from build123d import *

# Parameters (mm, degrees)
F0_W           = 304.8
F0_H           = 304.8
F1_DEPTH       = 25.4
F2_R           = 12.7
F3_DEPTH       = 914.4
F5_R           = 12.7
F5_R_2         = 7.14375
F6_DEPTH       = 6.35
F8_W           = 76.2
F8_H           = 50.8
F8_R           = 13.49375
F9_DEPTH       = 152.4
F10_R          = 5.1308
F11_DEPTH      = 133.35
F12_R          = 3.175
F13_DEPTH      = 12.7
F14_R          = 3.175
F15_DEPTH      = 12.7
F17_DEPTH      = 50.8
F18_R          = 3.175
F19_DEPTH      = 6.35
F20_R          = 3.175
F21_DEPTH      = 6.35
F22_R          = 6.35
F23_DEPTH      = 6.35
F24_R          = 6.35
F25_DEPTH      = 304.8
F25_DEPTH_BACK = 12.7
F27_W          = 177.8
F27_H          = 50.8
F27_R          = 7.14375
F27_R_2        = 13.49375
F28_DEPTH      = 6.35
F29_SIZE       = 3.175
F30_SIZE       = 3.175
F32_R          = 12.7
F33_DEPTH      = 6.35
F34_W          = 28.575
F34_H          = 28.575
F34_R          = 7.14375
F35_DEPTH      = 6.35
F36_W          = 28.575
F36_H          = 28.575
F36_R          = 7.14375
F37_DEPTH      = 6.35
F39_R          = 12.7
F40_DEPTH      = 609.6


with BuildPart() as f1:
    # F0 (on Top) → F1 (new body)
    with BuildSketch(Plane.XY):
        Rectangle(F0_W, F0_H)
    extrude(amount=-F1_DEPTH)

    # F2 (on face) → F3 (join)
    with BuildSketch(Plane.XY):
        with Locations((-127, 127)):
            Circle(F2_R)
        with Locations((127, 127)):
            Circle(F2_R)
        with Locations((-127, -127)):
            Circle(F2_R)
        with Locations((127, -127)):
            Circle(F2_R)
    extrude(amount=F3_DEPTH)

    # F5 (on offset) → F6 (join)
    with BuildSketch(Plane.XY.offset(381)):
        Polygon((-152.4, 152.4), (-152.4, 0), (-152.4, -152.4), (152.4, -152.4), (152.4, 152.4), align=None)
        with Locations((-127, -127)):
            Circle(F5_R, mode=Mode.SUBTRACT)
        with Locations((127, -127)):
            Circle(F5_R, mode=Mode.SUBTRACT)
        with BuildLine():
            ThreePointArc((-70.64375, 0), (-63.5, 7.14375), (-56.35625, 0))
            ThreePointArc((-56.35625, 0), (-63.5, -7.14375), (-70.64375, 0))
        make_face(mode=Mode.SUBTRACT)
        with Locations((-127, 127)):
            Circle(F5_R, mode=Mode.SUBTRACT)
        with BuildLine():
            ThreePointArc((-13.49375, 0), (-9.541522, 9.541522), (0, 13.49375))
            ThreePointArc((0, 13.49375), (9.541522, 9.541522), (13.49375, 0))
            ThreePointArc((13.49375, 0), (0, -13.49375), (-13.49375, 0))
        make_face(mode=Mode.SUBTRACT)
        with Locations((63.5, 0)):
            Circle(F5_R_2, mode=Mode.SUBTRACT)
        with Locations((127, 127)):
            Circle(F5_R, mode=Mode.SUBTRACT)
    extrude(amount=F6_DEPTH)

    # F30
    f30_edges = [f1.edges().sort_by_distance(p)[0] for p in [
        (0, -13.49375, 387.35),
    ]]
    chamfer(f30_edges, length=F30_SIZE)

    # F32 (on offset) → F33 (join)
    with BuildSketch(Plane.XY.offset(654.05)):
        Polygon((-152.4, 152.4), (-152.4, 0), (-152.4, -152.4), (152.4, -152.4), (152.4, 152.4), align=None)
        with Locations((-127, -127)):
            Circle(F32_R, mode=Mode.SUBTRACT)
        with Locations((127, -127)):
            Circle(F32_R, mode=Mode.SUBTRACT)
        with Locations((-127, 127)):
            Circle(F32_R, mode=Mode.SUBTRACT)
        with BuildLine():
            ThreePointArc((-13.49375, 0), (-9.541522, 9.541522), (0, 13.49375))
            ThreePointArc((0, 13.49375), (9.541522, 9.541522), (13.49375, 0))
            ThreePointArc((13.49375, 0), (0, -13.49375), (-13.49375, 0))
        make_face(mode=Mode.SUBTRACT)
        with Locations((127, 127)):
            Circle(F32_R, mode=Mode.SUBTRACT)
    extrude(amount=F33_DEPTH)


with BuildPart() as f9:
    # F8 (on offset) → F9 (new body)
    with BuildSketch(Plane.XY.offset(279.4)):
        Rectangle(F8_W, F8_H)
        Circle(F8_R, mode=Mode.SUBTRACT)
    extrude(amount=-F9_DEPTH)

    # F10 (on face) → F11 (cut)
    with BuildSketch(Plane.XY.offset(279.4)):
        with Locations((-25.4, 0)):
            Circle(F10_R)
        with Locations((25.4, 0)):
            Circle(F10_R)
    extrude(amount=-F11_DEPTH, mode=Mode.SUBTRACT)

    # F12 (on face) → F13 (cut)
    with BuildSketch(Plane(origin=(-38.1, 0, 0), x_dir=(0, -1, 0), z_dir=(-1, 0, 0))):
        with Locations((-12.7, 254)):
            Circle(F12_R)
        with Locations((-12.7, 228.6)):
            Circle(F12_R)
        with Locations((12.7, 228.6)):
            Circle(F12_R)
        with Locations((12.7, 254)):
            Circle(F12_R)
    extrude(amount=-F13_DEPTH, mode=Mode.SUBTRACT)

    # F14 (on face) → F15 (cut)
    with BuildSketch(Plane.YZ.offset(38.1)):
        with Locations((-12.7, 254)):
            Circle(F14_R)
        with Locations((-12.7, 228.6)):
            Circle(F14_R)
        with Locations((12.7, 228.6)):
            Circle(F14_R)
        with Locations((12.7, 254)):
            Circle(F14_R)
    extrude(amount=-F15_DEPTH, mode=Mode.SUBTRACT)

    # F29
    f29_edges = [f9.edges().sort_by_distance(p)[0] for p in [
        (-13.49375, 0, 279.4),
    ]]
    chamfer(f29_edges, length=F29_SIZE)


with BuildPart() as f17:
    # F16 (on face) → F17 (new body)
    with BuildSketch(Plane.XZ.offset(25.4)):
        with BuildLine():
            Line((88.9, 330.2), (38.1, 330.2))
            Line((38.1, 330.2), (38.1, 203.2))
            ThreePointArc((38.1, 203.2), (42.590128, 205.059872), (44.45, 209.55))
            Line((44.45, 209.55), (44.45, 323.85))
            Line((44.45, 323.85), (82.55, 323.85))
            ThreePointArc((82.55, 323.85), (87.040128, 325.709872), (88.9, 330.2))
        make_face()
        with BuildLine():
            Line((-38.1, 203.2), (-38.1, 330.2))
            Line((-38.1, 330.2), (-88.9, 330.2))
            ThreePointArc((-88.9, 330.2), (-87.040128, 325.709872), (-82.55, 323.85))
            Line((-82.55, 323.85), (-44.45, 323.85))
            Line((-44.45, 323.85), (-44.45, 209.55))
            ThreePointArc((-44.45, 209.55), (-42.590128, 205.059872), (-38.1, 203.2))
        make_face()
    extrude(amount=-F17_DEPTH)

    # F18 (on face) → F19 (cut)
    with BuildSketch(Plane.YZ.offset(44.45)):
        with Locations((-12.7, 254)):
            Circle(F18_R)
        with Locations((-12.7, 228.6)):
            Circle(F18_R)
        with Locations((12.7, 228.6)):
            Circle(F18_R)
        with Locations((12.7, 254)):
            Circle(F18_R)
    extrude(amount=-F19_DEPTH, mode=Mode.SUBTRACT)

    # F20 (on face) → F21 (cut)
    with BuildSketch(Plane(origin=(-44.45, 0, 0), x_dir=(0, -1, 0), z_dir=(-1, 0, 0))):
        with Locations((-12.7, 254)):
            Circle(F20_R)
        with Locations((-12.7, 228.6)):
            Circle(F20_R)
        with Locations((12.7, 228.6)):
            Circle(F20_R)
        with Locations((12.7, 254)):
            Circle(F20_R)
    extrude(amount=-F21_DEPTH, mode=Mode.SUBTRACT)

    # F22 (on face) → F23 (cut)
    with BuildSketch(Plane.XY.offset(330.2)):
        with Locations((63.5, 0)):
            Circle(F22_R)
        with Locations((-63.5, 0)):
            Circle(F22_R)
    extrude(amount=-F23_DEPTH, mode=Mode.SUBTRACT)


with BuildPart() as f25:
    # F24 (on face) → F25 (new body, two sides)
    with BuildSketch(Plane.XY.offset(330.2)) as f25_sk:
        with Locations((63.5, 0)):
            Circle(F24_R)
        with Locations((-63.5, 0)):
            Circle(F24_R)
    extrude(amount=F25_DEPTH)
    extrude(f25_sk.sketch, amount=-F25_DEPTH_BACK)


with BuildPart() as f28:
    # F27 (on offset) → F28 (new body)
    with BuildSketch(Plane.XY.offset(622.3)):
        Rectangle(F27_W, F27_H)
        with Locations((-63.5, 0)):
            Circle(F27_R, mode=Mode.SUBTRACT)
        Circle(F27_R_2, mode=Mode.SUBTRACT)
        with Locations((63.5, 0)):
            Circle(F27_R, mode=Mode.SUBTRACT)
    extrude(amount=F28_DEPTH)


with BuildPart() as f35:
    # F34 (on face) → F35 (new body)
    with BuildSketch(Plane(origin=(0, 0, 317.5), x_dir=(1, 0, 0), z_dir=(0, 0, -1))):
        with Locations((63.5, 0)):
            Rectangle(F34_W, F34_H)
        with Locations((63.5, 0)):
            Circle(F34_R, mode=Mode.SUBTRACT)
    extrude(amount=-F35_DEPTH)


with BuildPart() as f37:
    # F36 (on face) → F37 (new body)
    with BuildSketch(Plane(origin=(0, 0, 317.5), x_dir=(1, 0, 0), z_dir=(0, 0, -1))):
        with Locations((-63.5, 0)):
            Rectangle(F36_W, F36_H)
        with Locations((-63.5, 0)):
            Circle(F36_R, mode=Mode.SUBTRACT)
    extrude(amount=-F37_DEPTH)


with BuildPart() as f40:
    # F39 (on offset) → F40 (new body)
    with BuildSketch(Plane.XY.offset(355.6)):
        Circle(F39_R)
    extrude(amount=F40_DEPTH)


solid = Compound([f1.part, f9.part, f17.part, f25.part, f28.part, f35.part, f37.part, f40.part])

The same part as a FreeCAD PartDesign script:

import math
import FreeCAD as App
import Part
import Sketcher

V = App.Vector
Q = App.Units.Quantity


def edges_at(feature, points):
    """Names of the edges that pass closest to the given points."""
    edges = feature.Shape.Edges
    near = lambda p: min(range(len(edges)), key=lambda i: edges[i].distToShape(Part.Vertex(*p))[0])
    return sorted({f"Edge{near(p) + 1}" for p in points})


def add_polygon(sketch, points):
    """Adds a closed chain of lines whose ends are joined by coincident constraints."""
    first, n = sketch.GeometryCount, len(points)
    for a, b in zip(points, points[1:] + points[:1]):
        sketch.addGeometry(Part.LineSegment(App.Vector(*a, 0), App.Vector(*b, 0)), False)
    for i in range(n):
        sketch.addConstraint(Sketcher.Constraint("Coincident", first + i, 2, first + (i + 1) % n, 1))

doc = App.newDocument("Part")
params = doc.addObject("Spreadsheet::Sheet", "Params")
for row, (alias, value) in enumerate([
    ("sketch1_width", "12 in"),
    ("pad1_length", "1 in"),
    ("sketch2_diameter", "1 in"),
    ("pad2_length", "36 in"),
    ("sketch3_diameter", "1 in"),
    ("sketch3_width", "12 in"),
    ("sketch3_diameter2", "0.5625 in"),
    ("sketch3_radius", "0.53125 in"),
    ("pad3_length", "0.25 in"),
    ("chamfer_size", "0.125 in"),
    ("sketch4_diameter", "1 in"),
    ("sketch4_width", "12 in"),
    ("sketch4_radius", "0.53125 in"),
    ("pad4_length", "0.25 in"),
    ("sketch5_width", "3 in"),
    ("sketch5_height", "2 in"),
    ("sketch5_diameter", "1.0625 in"),
    ("pad5_length", "6 in"),
    ("sketch6_diameter", "0.404 in"),
    ("pocket1_length", "5.25 in"),
    ("sketch7_diameter", "0.25 in"),
    ("pocket2_length", "0.5 in"),
    ("sketch8_diameter", "0.25 in"),
    ("pocket3_length", "0.5 in"),
    ("chamfer2_size", "0.125 in"),
    ("sketch9_width", "2 in"),
    ("sketch9_height", "5 in"),
    ("sketch9_radius", "0.25 in"),
    ("pad6_length", "2 in"),
    ("sketch10_diameter", "0.25 in"),
    ("pocket4_length", "0.25 in"),
    ("sketch11_diameter", "0.25 in"),
    ("pocket5_length", "0.25 in"),
    ("sketch12_diameter", "0.5 in"),
    ("pocket6_length", "0.25 in"),
    ("sketch13_diameter", "0.5 in"),
    ("pad7_length", "12 in"),
    ("pad7_length2", "0.5 in"),
    ("sketch14_width", "7 in"),
    ("sketch14_height", "2 in"),
    ("sketch14_diameter", "0.5625 in"),
    ("sketch14_diameter2", "1.0625 in"),
    ("pad8_length", "0.25 in"),
    ("sketch15_diameter", "0.5625 in"),
    ("sketch15_width", "1.125 in"),
    ("pad9_length", "0.25 in"),
    ("sketch16_diameter", "0.5625 in"),
    ("sketch16_width", "1.125 in"),
    ("pad10_length", "0.25 in"),
    ("sketch17_diameter", "1 in"),
    ("pad11_length", "24 in"),
], start=1):
    params.set(f"A{row}", alias)
    params.set(f"B{row}", "=" + value)
    params.setAlias(f"B{row}", alias)

body = doc.addObject("PartDesign::Body", "Body")

# Sketch on XY plane
sketch1 = body.newObject("Sketcher::SketchObject", "Sketch")
sketch1.AttachmentSupport = (doc.getObject("XY_Plane"), [""])
sketch1.MapMode = "FlatFace"
add_polygon(sketch1, [(-152, 152), (-152, -152), (152, -152), (152, 152)])  # lines 0-3
sketch1.addConstraint(Sketcher.Constraint("Vertical", 0))
sketch1.addConstraint(Sketcher.Constraint("Horizontal", 1))
sketch1.addConstraint(Sketcher.Constraint("Vertical", 2))
sketch1.addConstraint(Sketcher.Constraint("Horizontal", 3))
sketch1.addConstraint(Sketcher.Constraint("Symmetric", 0, 2, 2, 2, -1, 1))
sketch1.addConstraint(Sketcher.Constraint("Equal", 3, 0))
sketch1.addConstraint(Sketcher.Constraint("DistanceX", 1, 1, 1, 2, Q("12 in")))
sketch1.setExpression("Constraints[10]", "Params.sketch1_width")
pad1 = body.newObject("PartDesign::Pad", "Pad")
pad1.Profile = sketch1
pad1.setExpression("Length", "Params.pad1_length")
pad1.Reversed = True

# Sketch on XY plane
sketch2 = body.newObject("Sketcher::SketchObject", "Sketch001")
sketch2.AttachmentSupport = (doc.getObject("XY_Plane"), [""])
sketch2.MapMode = "FlatFace"
sketch2.addGeometry(Part.Circle(V(-127, 127, 0), V(0, 0, 1), 13), False)
sketch2.addGeometry(Part.Circle(V(127, 127, 0), V(0, 0, 1), 13), False)
sketch2.addGeometry(Part.Circle(V(-127, -127, 0), V(0, 0, 1), 13), False)
sketch2.addGeometry(Part.Circle(V(127, -127, 0), V(0, 0, 1), 13), False)
sketch2.addConstraint(Sketcher.Constraint("Equal", 0, 1))
sketch2.addConstraint(Sketcher.Constraint("Equal", 1, 2))
sketch2.addConstraint(Sketcher.Constraint("Equal", 2, 3))
sketch2.addConstraint(Sketcher.Constraint("Symmetric", 1, 3, 2, 3, -1, 1))
sketch2.addConstraint(Sketcher.Constraint("Symmetric", 0, 3, 3, 3, -1, 1))
sketch2.addConstraint(Sketcher.Constraint("Symmetric", 0, 3, 1, 3, -2))
sketch2.addConstraint(Sketcher.Constraint("Diameter", 0, Q("1 in")))
sketch2.addConstraint(Sketcher.Constraint("DistanceX", 0, 3, -1, 1, Q("5 in")))
sketch2.addConstraint(Sketcher.Constraint("DistanceY", -1, 1, 0, 3, Q("5 in")))
sketch2.setExpression("Constraints[6]", "Params.sketch2_diameter")
pad2 = body.newObject("PartDesign::Pad", "Pad001")
pad2.Profile = sketch2
pad2.setExpression("Length", "Params.pad2_length")

# Sketch on XY plane
sketch3 = body.newObject("Sketcher::SketchObject", "Sketch002")
sketch3.AttachmentSupport = (doc.getObject("XY_Plane"), [""])
sketch3.MapMode = "FlatFace"
sketch3.AttachmentOffset = App.Placement(V(0, 0, 15 * 25.4), App.Rotation())
add_polygon(sketch3, [(-152, 152), (-152, -152), (152, -152), (152, 152)])  # lines 0-3
sketch3.addGeometry(Part.Circle(V(-127, -127, 0), V(0, 0, 1), 13), False)  # 4
sketch3.addGeometry(Part.Circle(V(127, -127, 0), V(0, 0, 1), 13), False)  # 5
sketch3.addGeometry(Part.Circle(V(-64, 0, 0), V(0, 0, 1), 7), False)  # 6
sketch3.addGeometry(Part.Circle(V(-127, 127, 0), V(0, 0, 1), 13), False)  # 7
sketch3.addGeometry(Part.ArcOfCircle(Part.Circle(V(0, 0, 0), V(0, 0, 1), 13), math.radians(180), math.radians(360)), False)  # 8
sketch3.addGeometry(Part.ArcOfCircle(Part.Circle(V(0, 0, 0), V(0, 0, 1), 13), math.radians(90), math.radians(180)), False)  # 9
sketch3.addGeometry(Part.ArcOfCircle(Part.Circle(V(0, 0, 0), V(0, 0, 1), 13), math.radians(0), math.radians(90)), False)  # 10
sketch3.addGeometry(Part.Circle(V(64, 0, 0), V(0, 0, 1), 7), False)  # 11
sketch3.addGeometry(Part.Circle(V(127, 127, 0), V(0, 0, 1), 13), False)  # 12
sketch3.addConstraint(Sketcher.Constraint("Tangent", 8, 1, 9, 2))
sketch3.addConstraint(Sketcher.Constraint("Tangent", 9, 1, 10, 2))
sketch3.addConstraint(Sketcher.Constraint("Tangent", 10, 1, 8, 2))
sketch3.addConstraint(Sketcher.Constraint("Vertical", 0))
sketch3.addConstraint(Sketcher.Constraint("Horizontal", 1))
sketch3.addConstraint(Sketcher.Constraint("Vertical", 2))
sketch3.addConstraint(Sketcher.Constraint("Horizontal", 3))
sketch3.addConstraint(Sketcher.Constraint("Coincident", 8, 3, -1, 1))
sketch3.addConstraint(Sketcher.Constraint("Equal", 4, 5))
sketch3.addConstraint(Sketcher.Constraint("Equal", 5, 7))
sketch3.addConstraint(Sketcher.Constraint("Equal", 6, 11))
sketch3.addConstraint(Sketcher.Constraint("Equal", 7, 12))
sketch3.addConstraint(Sketcher.Constraint("Symmetric", 5, 3, 7, 3, -1, 1))
sketch3.addConstraint(Sketcher.Constraint("Symmetric", 6, 3, 11, 3, -1, 1))
sketch3.addConstraint(Sketcher.Constraint("Symmetric", 4, 3, 12, 3, -1, 1))
sketch3.addConstraint(Sketcher.Constraint("Symmetric", 0, 2, 2, 2, -1, 1))
sketch3.addConstraint(Sketcher.Constraint("Symmetric", 4, 3, 5, 3, -2))
sketch3.addConstraint(Sketcher.Constraint("PointOnObject", 6, 3, -1))
sketch3.addConstraint(Sketcher.Constraint("PointOnObject", 8, 1, -1))
sketch3.addConstraint(Sketcher.Constraint("PointOnObject", 9, 1, -2))
sketch3.addConstraint(Sketcher.Constraint("PointOnObject", 10, 1, -1))
sketch3.addConstraint(Sketcher.Constraint("Equal", 3, 0))
sketch3.addConstraint(Sketcher.Constraint("Diameter", 4, Q("1 in")))
sketch3.addConstraint(Sketcher.Constraint("DistanceX", 1, 1, 1, 2, Q("12 in")))
sketch3.addConstraint(Sketcher.Constraint("Diameter", 6, Q("0.5625 in")))
sketch3.addConstraint(Sketcher.Constraint("DistanceX", 4, 3, -1, 1, Q("5 in")))
sketch3.addConstraint(Sketcher.Constraint("DistanceY", 4, 3, -1, 1, Q("5 in")))
sketch3.addConstraint(Sketcher.Constraint("Radius", 8, Q("0.53125 in")))
sketch3.addConstraint(Sketcher.Constraint("DistanceX", 6, 3, 11, 3, Q("5 in")))
sketch3.setExpression("Constraints[26]", "Params.sketch3_diameter")
sketch3.setExpression("Constraints[27]", "Params.sketch3_width")
sketch3.setExpression("Constraints[28]", "Params.sketch3_diameter2")
sketch3.setExpression("Constraints[31]", "Params.sketch3_radius")
pad3 = body.newObject("PartDesign::Pad", "Pad002")
pad3.Profile = sketch3
pad3.setExpression("Length", "Params.pad3_length")
doc.recompute()

chamfer = body.newObject("PartDesign::Chamfer", "Chamfer")
chamfer.Base = (pad3, edges_at(pad3, [(0, -13.494, 387.35)]))
chamfer.setExpression("Size", "Params.chamfer_size")

# Sketch on XY plane
sketch4 = body.newObject("Sketcher::SketchObject", "Sketch003")
sketch4.AttachmentSupport = (doc.getObject("XY_Plane"), [""])
sketch4.MapMode = "FlatFace"
sketch4.AttachmentOffset = App.Placement(V(0, 0, 25.75 * 25.4), App.Rotation())
add_polygon(sketch4, [(-152, 152), (-152, -152), (152, -152), (152, 152)])  # lines 0-3
sketch4.addGeometry(Part.Circle(V(-127, -127, 0), V(0, 0, 1), 13), False)  # 4
sketch4.addGeometry(Part.Circle(V(127, -127, 0), V(0, 0, 1), 13), False)  # 5
sketch4.addGeometry(Part.Circle(V(-127, 127, 0), V(0, 0, 1), 13), False)  # 6
sketch4.addGeometry(Part.ArcOfCircle(Part.Circle(V(0, 0, 0), V(0, 0, 1), 13), math.radians(180), math.radians(360)), False)  # 7
sketch4.addGeometry(Part.ArcOfCircle(Part.Circle(V(0, 0, 0), V(0, 0, 1), 13), math.radians(90), math.radians(180)), False)  # 8
sketch4.addGeometry(Part.ArcOfCircle(Part.Circle(V(0, 0, 0), V(0, 0, 1), 13), math.radians(0), math.radians(90)), False)  # 9
sketch4.addGeometry(Part.Circle(V(127, 127, 0), V(0, 0, 1), 13), False)  # 10
sketch4.addConstraint(Sketcher.Constraint("Tangent", 7, 1, 8, 2))
sketch4.addConstraint(Sketcher.Constraint("Tangent", 8, 1, 9, 2))
sketch4.addConstraint(Sketcher.Constraint("Tangent", 9, 1, 7, 2))
sketch4.addConstraint(Sketcher.Constraint("Vertical", 0))
sketch4.addConstraint(Sketcher.Constraint("Horizontal", 1))
sketch4.addConstraint(Sketcher.Constraint("Vertical", 2))
sketch4.addConstraint(Sketcher.Constraint("Horizontal", 3))
sketch4.addConstraint(Sketcher.Constraint("Coincident", 7, 3, -1, 1))
sketch4.addConstraint(Sketcher.Constraint("Equal", 4, 5))
sketch4.addConstraint(Sketcher.Constraint("Equal", 5, 6))
sketch4.addConstraint(Sketcher.Constraint("Equal", 6, 10))
sketch4.addConstraint(Sketcher.Constraint("Symmetric", 5, 3, 6, 3, -1, 1))
sketch4.addConstraint(Sketcher.Constraint("Symmetric", 4, 3, 10, 3, -1, 1))
sketch4.addConstraint(Sketcher.Constraint("Symmetric", 0, 2, 2, 2, -1, 1))
sketch4.addConstraint(Sketcher.Constraint("Symmetric", 4, 3, 5, 3, -2))
sketch4.addConstraint(Sketcher.Constraint("PointOnObject", 7, 1, -1))
sketch4.addConstraint(Sketcher.Constraint("PointOnObject", 8, 1, -2))
sketch4.addConstraint(Sketcher.Constraint("PointOnObject", 9, 1, -1))
sketch4.addConstraint(Sketcher.Constraint("Equal", 3, 0))
sketch4.addConstraint(Sketcher.Constraint("Diameter", 4, Q("1 in")))
sketch4.addConstraint(Sketcher.Constraint("DistanceX", 1, 1, 1, 2, Q("12 in")))
sketch4.addConstraint(Sketcher.Constraint("DistanceX", 4, 3, -1, 1, Q("5 in")))
sketch4.addConstraint(Sketcher.Constraint("DistanceY", 4, 3, -1, 1, Q("5 in")))
sketch4.addConstraint(Sketcher.Constraint("Radius", 7, Q("0.53125 in")))
sketch4.setExpression("Constraints[23]", "Params.sketch4_diameter")
sketch4.setExpression("Constraints[24]", "Params.sketch4_width")
sketch4.setExpression("Constraints[27]", "Params.sketch4_radius")
pad4 = body.newObject("PartDesign::Pad", "Pad003")
pad4.Profile = sketch4
pad4.setExpression("Length", "Params.pad4_length")
body2 = doc.addObject("PartDesign::Body", "Body001")

# Sketch on XY plane
sketch5 = body2.newObject("Sketcher::SketchObject", "Sketch004")
sketch5.AttachmentSupport = (doc.getObject("XY_Plane001"), [""])
sketch5.MapMode = "FlatFace"
sketch5.AttachmentOffset = App.Placement(V(0, 0, 11 * 25.4), App.Rotation())
add_polygon(sketch5, [(-38, 25), (-38, -25), (38, -25), (38, 25)])  # lines 0-3
sketch5.addGeometry(Part.Circle(V(0, 0, 0), V(0, 0, 1), 13), False)  # 4
sketch5.addConstraint(Sketcher.Constraint("Vertical", 0))
sketch5.addConstraint(Sketcher.Constraint("Horizontal", 1))
sketch5.addConstraint(Sketcher.Constraint("Vertical", 2))
sketch5.addConstraint(Sketcher.Constraint("Horizontal", 3))
sketch5.addConstraint(Sketcher.Constraint("Coincident", 4, 3, -1, 1))
sketch5.addConstraint(Sketcher.Constraint("Symmetric", 0, 2, 2, 2, -1, 1))
sketch5.addConstraint(Sketcher.Constraint("DistanceX", 1, 1, 1, 2, Q("3 in")))
sketch5.addConstraint(Sketcher.Constraint("DistanceY", 0, 2, 0, 1, Q("2 in")))
sketch5.addConstraint(Sketcher.Constraint("Diameter", 4, Q("1.0625 in")))
sketch5.setExpression("Constraints[10]", "Params.sketch5_width")
sketch5.setExpression("Constraints[11]", "Params.sketch5_height")
sketch5.setExpression("Constraints[12]", "Params.sketch5_diameter")
pad5 = body2.newObject("PartDesign::Pad", "Pad004")
pad5.Profile = sketch5
pad5.setExpression("Length", "Params.pad5_length")
pad5.Reversed = True

# Sketch on XY plane
sketch6 = body2.newObject("Sketcher::SketchObject", "Sketch005")
sketch6.AttachmentSupport = (doc.getObject("XY_Plane001"), [""])
sketch6.MapMode = "FlatFace"
sketch6.AttachmentOffset = App.Placement(V(0, 0, 11 * 25.4), App.Rotation())
sketch6.addGeometry(Part.Circle(V(-25, 0, 0), V(0, 0, 1), 5), False)
sketch6.addGeometry(Part.Circle(V(25, 0, 0), V(0, 0, 1), 5), False)
sketch6.addConstraint(Sketcher.Constraint("Equal", 0, 1))
sketch6.addConstraint(Sketcher.Constraint("Symmetric", 0, 3, 1, 3, -1, 1))
sketch6.addConstraint(Sketcher.Constraint("PointOnObject", 0, 3, -1))
sketch6.addConstraint(Sketcher.Constraint("Diameter", 0, Q("0.404 in")))
sketch6.addConstraint(Sketcher.Constraint("DistanceX", 0, 3, -1, 1, Q("1 in")))
sketch6.setExpression("Constraints[3]", "Params.sketch6_diameter")
pocket1 = body2.newObject("PartDesign::Pocket", "Pocket")
pocket1.Profile = sketch6
pocket1.setExpression("Length", "Params.pocket1_length")

# Sketch on YZ plane
sketch7 = body2.newObject("Sketcher::SketchObject", "Sketch006")
sketch7.AttachmentSupport = (doc.getObject("YZ_Plane001"), [""])
sketch7.MapMode = "FlatFace"
sketch7.AttachmentOffset = App.Placement(V(0, 0, -1.5 * 25.4), App.Rotation())
sketch7.addGeometry(Part.Circle(V(12.7, 254, 0), V(0, 0, 1), 3.2), False)
sketch7.addGeometry(Part.Circle(V(12.7, 228.6, 0), V(0, 0, 1), 3.2), False)
sketch7.addGeometry(Part.Circle(V(-12.7, 228.6, 0), V(0, 0, 1), 3.2), False)
sketch7.addGeometry(Part.Circle(V(-12.7, 254, 0), V(0, 0, 1), 3.2), False)
sketch7.addConstraint(Sketcher.Constraint("Equal", 0, 1))
sketch7.addConstraint(Sketcher.Constraint("Equal", 1, 2))
sketch7.addConstraint(Sketcher.Constraint("Equal", 2, 3))
sketch7.addConstraint(Sketcher.Constraint("Symmetric", 1, 3, 2, 3, -2))
sketch7.addConstraint(Sketcher.Constraint("Symmetric", 0, 3, 3, 3, -2))
sketch7.addConstraint(Sketcher.Constraint("Vertical", 0, 3, 1, 3))
sketch7.addConstraint(Sketcher.Constraint("Diameter", 0, Q("0.25 in")))
sketch7.addConstraint(Sketcher.Constraint("DistanceY", -1, 1, 0, 3, Q("10 in")))
sketch7.addConstraint(Sketcher.Constraint("DistanceY", -1, 1, 1, 3, Q("9 in")))
sketch7.addConstraint(Sketcher.Constraint("DistanceX", 2, 3, 1, 3, Q("1 in")))
sketch7.setExpression("Constraints[6]", "Params.sketch7_diameter")
pocket2 = body2.newObject("PartDesign::Pocket", "Pocket001")
pocket2.Profile = sketch7
pocket2.setExpression("Length", "Params.pocket2_length")
pocket2.Reversed = True

# Sketch on YZ plane
sketch8 = body2.newObject("Sketcher::SketchObject", "Sketch007")
sketch8.AttachmentSupport = (doc.getObject("YZ_Plane001"), [""])
sketch8.MapMode = "FlatFace"
sketch8.AttachmentOffset = App.Placement(V(0, 0, 1.5 * 25.4), App.Rotation())
sketch8.addGeometry(Part.Circle(V(-12.7, 254, 0), V(0, 0, 1), 3.2), False)
sketch8.addGeometry(Part.Circle(V(-12.7, 228.6, 0), V(0, 0, 1), 3.2), False)
sketch8.addGeometry(Part.Circle(V(12.7, 228.6, 0), V(0, 0, 1), 3.2), False)
sketch8.addGeometry(Part.Circle(V(12.7, 254, 0), V(0, 0, 1), 3.2), False)
sketch8.addConstraint(Sketcher.Constraint("Equal", 0, 1))
sketch8.addConstraint(Sketcher.Constraint("Equal", 1, 2))
sketch8.addConstraint(Sketcher.Constraint("Equal", 2, 3))
sketch8.addConstraint(Sketcher.Constraint("Symmetric", 1, 3, 2, 3, -2))
sketch8.addConstraint(Sketcher.Constraint("Symmetric", 0, 3, 3, 3, -2))
sketch8.addConstraint(Sketcher.Constraint("Vertical", 0, 3, 1, 3))
sketch8.addConstraint(Sketcher.Constraint("Diameter", 0, Q("0.25 in")))
sketch8.addConstraint(Sketcher.Constraint("DistanceY", -1, 1, 0, 3, Q("10 in")))
sketch8.addConstraint(Sketcher.Constraint("DistanceY", -1, 1, 1, 3, Q("9 in")))
sketch8.addConstraint(Sketcher.Constraint("DistanceX", 1, 3, 2, 3, Q("1 in")))
sketch8.setExpression("Constraints[6]", "Params.sketch8_diameter")
pocket3 = body2.newObject("PartDesign::Pocket", "Pocket002")
pocket3.Profile = sketch8
pocket3.setExpression("Length", "Params.pocket3_length")
doc.recompute()

chamfer2 = body2.newObject("PartDesign::Chamfer", "Chamfer001")
chamfer2.Base = (pocket3, edges_at(pocket3, [(-13.494, 0, 279.4)]))
chamfer2.setExpression("Size", "Params.chamfer2_size")
body3 = doc.addObject("PartDesign::Body", "Body002")
body3.AllowCompound = True

# Sketch on XZ plane
sketch9 = body3.newObject("Sketcher::SketchObject", "Sketch008")
sketch9.AttachmentSupport = (doc.getObject("XZ_Plane002"), [""])
sketch9.MapMode = "FlatFace"
sketch9.AttachmentOffset = App.Placement(V(0, 0, 1 * 25.4), App.Rotation())
sketch9.addGeometry(Part.LineSegment(V(89, 330, 0), V(38, 330, 0)), False)
sketch9.addGeometry(Part.LineSegment(V(38, 330, 0), V(38, 203, 0)), False)
sketch9.addGeometry(Part.ArcOfCircle(Part.Circle(V(38, 210, 0), V(0, 0, 1), 6), math.radians(-90), math.radians(0)), False)
sketch9.addGeometry(Part.LineSegment(V(44, 210, 0), V(44, 324, 0)), False)
sketch9.addGeometry(Part.LineSegment(V(44, 324, 0), V(83, 324, 0)), False)
sketch9.addGeometry(Part.ArcOfCircle(Part.Circle(V(83, 330, 0), V(0, 0, 1), 6), math.radians(-90), math.radians(0)), False)
sketch9.addGeometry(Part.LineSegment(V(-38, 203, 0), V(-38, 330, 0)), False)
sketch9.addGeometry(Part.LineSegment(V(-38, 330, 0), V(-89, 330, 0)), False)
sketch9.addGeometry(Part.ArcOfCircle(Part.Circle(V(-83, 330, 0), V(0, 0, 1), 6), math.radians(-180), math.radians(-90)), False)
sketch9.addGeometry(Part.LineSegment(V(-83, 324, 0), V(-44, 324, 0)), False)
sketch9.addGeometry(Part.LineSegment(V(-44, 324, 0), V(-44, 210, 0)), False)
sketch9.addGeometry(Part.ArcOfCircle(Part.Circle(V(-38, 210, 0), V(0, 0, 1), 6), math.radians(-180), math.radians(-90)), False)
sketch9.addConstraint(Sketcher.Constraint("Coincident", 0, 2, 1, 1))
sketch9.addConstraint(Sketcher.Constraint("Coincident", 1, 2, 2, 1))
sketch9.addConstraint(Sketcher.Constraint("Tangent", 2, 2, 3, 1))
sketch9.addConstraint(Sketcher.Constraint("Coincident", 3, 2, 4, 1))
sketch9.addConstraint(Sketcher.Constraint("Tangent", 4, 2, 5, 1))
sketch9.addConstraint(Sketcher.Constraint("Coincident", 5, 2, 0, 1))
sketch9.addConstraint(Sketcher.Constraint("Coincident", 6, 2, 7, 1))
sketch9.addConstraint(Sketcher.Constraint("Coincident", 7, 2, 8, 1))
sketch9.addConstraint(Sketcher.Constraint("Tangent", 8, 2, 9, 1))
sketch9.addConstraint(Sketcher.Constraint("Coincident", 9, 2, 10, 1))
sketch9.addConstraint(Sketcher.Constraint("Tangent", 10, 2, 11, 1))
sketch9.addConstraint(Sketcher.Constraint("Coincident", 11, 2, 6, 1))
sketch9.addConstraint(Sketcher.Constraint("Horizontal", 0))
sketch9.addConstraint(Sketcher.Constraint("Vertical", 1))
sketch9.addConstraint(Sketcher.Constraint("Vertical", 3))
sketch9.addConstraint(Sketcher.Constraint("Horizontal", 4))
sketch9.addConstraint(Sketcher.Constraint("Vertical", 6))
sketch9.addConstraint(Sketcher.Constraint("Horizontal", 7))
sketch9.addConstraint(Sketcher.Constraint("Horizontal", 9))
sketch9.addConstraint(Sketcher.Constraint("Vertical", 10))
sketch9.addConstraint(Sketcher.Constraint("Equal", 2, 5))
sketch9.addConstraint(Sketcher.Constraint("Equal", 5, 8))
sketch9.addConstraint(Sketcher.Constraint("Equal", 8, 11))
sketch9.addConstraint(Sketcher.Constraint("Symmetric", 5, 3, 8, 3, -2))
sketch9.addConstraint(Sketcher.Constraint("Symmetric", 2, 3, 11, 3, -2))
sketch9.addConstraint(Sketcher.Constraint("Symmetric", 0, 2, 6, 2, -2))
sketch9.addConstraint(Sketcher.Constraint("Horizontal", 8, 3, 0, 2))
sketch9.addConstraint(Sketcher.Constraint("Vertical", 2, 3, 0, 2))
sketch9.addConstraint(Sketcher.Constraint("DistanceX", 0, 2, 0, 1, Q("2 in")))
sketch9.addConstraint(Sketcher.Constraint("DistanceY", 1, 2, 1, 1, Q("5 in")))
sketch9.addConstraint(Sketcher.Constraint("Radius", 2, Q("0.25 in")))
sketch9.addConstraint(Sketcher.Constraint("DistanceY", -1, 1, 5, 3, Q("13 in")))
sketch9.addConstraint(Sketcher.Constraint("DistanceX", 11, 3, 2, 3, Q("3 in")))
sketch9.setExpression("Constraints[28]", "Params.sketch9_width")
sketch9.setExpression("Constraints[29]", "Params.sketch9_height")
sketch9.setExpression("Constraints[30]", "Params.sketch9_radius")
pad6 = body3.newObject("PartDesign::Pad", "Pad005")
pad6.Profile = sketch9
pad6.setExpression("Length", "Params.pad6_length")
pad6.Reversed = True

# Sketch on YZ plane
sketch10 = body3.newObject("Sketcher::SketchObject", "Sketch009")
sketch10.AttachmentSupport = (doc.getObject("YZ_Plane002"), [""])
sketch10.MapMode = "FlatFace"
sketch10.AttachmentOffset = App.Placement(V(0, 0, 1.75 * 25.4), App.Rotation())
sketch10.addGeometry(Part.Circle(V(-12.7, 254, 0), V(0, 0, 1), 3.2), False)
sketch10.addGeometry(Part.Circle(V(-12.7, 228.6, 0), V(0, 0, 1), 3.2), False)
sketch10.addGeometry(Part.Circle(V(12.7, 228.6, 0), V(0, 0, 1), 3.2), False)
sketch10.addGeometry(Part.Circle(V(12.7, 254, 0), V(0, 0, 1), 3.2), False)
sketch10.addConstraint(Sketcher.Constraint("Equal", 0, 1))
sketch10.addConstraint(Sketcher.Constraint("Equal", 1, 2))
sketch10.addConstraint(Sketcher.Constraint("Equal", 2, 3))
sketch10.addConstraint(Sketcher.Constraint("Symmetric", 1, 3, 2, 3, -2))
sketch10.addConstraint(Sketcher.Constraint("Symmetric", 0, 3, 3, 3, -2))
sketch10.addConstraint(Sketcher.Constraint("Vertical", 0, 3, 1, 3))
sketch10.addConstraint(Sketcher.Constraint("Diameter", 0, Q("0.25 in")))
sketch10.addConstraint(Sketcher.Constraint("DistanceY", -1, 1, 0, 3, Q("10 in")))
sketch10.addConstraint(Sketcher.Constraint("DistanceY", -1, 1, 1, 3, Q("9 in")))
sketch10.addConstraint(Sketcher.Constraint("DistanceX", 1, 3, 2, 3, Q("1 in")))
sketch10.setExpression("Constraints[6]", "Params.sketch10_diameter")
pocket4 = body3.newObject("PartDesign::Pocket", "Pocket003")
pocket4.Profile = sketch10
pocket4.setExpression("Length", "Params.pocket4_length")

# Sketch on YZ plane
sketch11 = body3.newObject("Sketcher::SketchObject", "Sketch010")
sketch11.AttachmentSupport = (doc.getObject("YZ_Plane002"), [""])
sketch11.MapMode = "FlatFace"
sketch11.AttachmentOffset = App.Placement(V(0, 0, -1.75 * 25.4), App.Rotation())
sketch11.addGeometry(Part.Circle(V(12.7, 254, 0), V(0, 0, 1), 3.2), False)
sketch11.addGeometry(Part.Circle(V(12.7, 228.6, 0), V(0, 0, 1), 3.2), False)
sketch11.addGeometry(Part.Circle(V(-12.7, 228.6, 0), V(0, 0, 1), 3.2), False)
sketch11.addGeometry(Part.Circle(V(-12.7, 254, 0), V(0, 0, 1), 3.2), False)
sketch11.addConstraint(Sketcher.Constraint("Equal", 0, 1))
sketch11.addConstraint(Sketcher.Constraint("Equal", 1, 2))
sketch11.addConstraint(Sketcher.Constraint("Equal", 2, 3))
sketch11.addConstraint(Sketcher.Constraint("Symmetric", 1, 3, 2, 3, -2))
sketch11.addConstraint(Sketcher.Constraint("Symmetric", 0, 3, 3, 3, -2))
sketch11.addConstraint(Sketcher.Constraint("Vertical", 0, 3, 1, 3))
sketch11.addConstraint(Sketcher.Constraint("Diameter", 0, Q("0.25 in")))
sketch11.addConstraint(Sketcher.Constraint("DistanceY", -1, 1, 0, 3, Q("10 in")))
sketch11.addConstraint(Sketcher.Constraint("DistanceY", -1, 1, 1, 3, Q("9 in")))
sketch11.addConstraint(Sketcher.Constraint("DistanceX", 2, 3, 1, 3, Q("1 in")))
sketch11.setExpression("Constraints[6]", "Params.sketch11_diameter")
pocket5 = body3.newObject("PartDesign::Pocket", "Pocket004")
pocket5.Profile = sketch11
pocket5.setExpression("Length", "Params.pocket5_length")
pocket5.Reversed = True

# Sketch on XY plane
sketch12 = body3.newObject("Sketcher::SketchObject", "Sketch011")
sketch12.AttachmentSupport = (doc.getObject("XY_Plane002"), [""])
sketch12.MapMode = "FlatFace"
sketch12.AttachmentOffset = App.Placement(V(0, 0, 13 * 25.4), App.Rotation())
sketch12.addGeometry(Part.Circle(V(64, 0, 0), V(0, 0, 1), 6), False)
sketch12.addGeometry(Part.Circle(V(-64, 0, 0), V(0, 0, 1), 6), False)
sketch12.addConstraint(Sketcher.Constraint("Equal", 0, 1))
sketch12.addConstraint(Sketcher.Constraint("Symmetric", 0, 3, 1, 3, -1, 1))
sketch12.addConstraint(Sketcher.Constraint("PointOnObject", 0, 3, -1))
sketch12.addConstraint(Sketcher.Constraint("Diameter", 0, Q("0.5 in")))
sketch12.addConstraint(Sketcher.Constraint("DistanceX", 1, 3, 0, 3, Q("5 in")))
sketch12.setExpression("Constraints[3]", "Params.sketch12_diameter")
pocket6 = body3.newObject("PartDesign::Pocket", "Pocket005")
pocket6.Profile = sketch12
pocket6.setExpression("Length", "Params.pocket6_length")
body4 = doc.addObject("PartDesign::Body", "Body003")
body4.AllowCompound = True

# Sketch on XY plane
sketch13 = body4.newObject("Sketcher::SketchObject", "Sketch012")
sketch13.AttachmentSupport = (doc.getObject("XY_Plane003"), [""])
sketch13.MapMode = "FlatFace"
sketch13.AttachmentOffset = App.Placement(V(0, 0, 13 * 25.4), App.Rotation())
sketch13.addGeometry(Part.Circle(V(64, 0, 0), V(0, 0, 1), 6), False)
sketch13.addGeometry(Part.Circle(V(-64, 0, 0), V(0, 0, 1), 6), False)
sketch13.addConstraint(Sketcher.Constraint("Equal", 0, 1))
sketch13.addConstraint(Sketcher.Constraint("Symmetric", 0, 3, 1, 3, -1, 1))
sketch13.addConstraint(Sketcher.Constraint("PointOnObject", 0, 3, -1))
sketch13.addConstraint(Sketcher.Constraint("Diameter", 0, Q("0.5 in")))
sketch13.addConstraint(Sketcher.Constraint("DistanceX", 1, 3, 0, 3, Q("5 in")))
sketch13.setExpression("Constraints[3]", "Params.sketch13_diameter")
pad7 = body4.newObject("PartDesign::Pad", "Pad006")
pad7.Profile = sketch13
pad7.Type = "TwoLengths"
pad7.setExpression("Length", "Params.pad7_length")
pad7.setExpression("Length2", "Params.pad7_length2")
body5 = doc.addObject("PartDesign::Body", "Body004")

# Sketch on XY plane
sketch14 = body5.newObject("Sketcher::SketchObject", "Sketch013")
sketch14.AttachmentSupport = (doc.getObject("XY_Plane004"), [""])
sketch14.MapMode = "FlatFace"
sketch14.AttachmentOffset = App.Placement(V(0, 0, 24.5 * 25.4), App.Rotation())
add_polygon(sketch14, [(-89, 25), (-89, -25), (89, -25), (89, 25)])  # lines 0-3
sketch14.addGeometry(Part.Circle(V(-64, 0, 0), V(0, 0, 1), 7), False)  # 4
sketch14.addGeometry(Part.Circle(V(0, 0, 0), V(0, 0, 1), 13), False)  # 5
sketch14.addGeometry(Part.Circle(V(64, 0, 0), V(0, 0, 1), 7), False)  # 6
sketch14.addConstraint(Sketcher.Constraint("Vertical", 0))
sketch14.addConstraint(Sketcher.Constraint("Horizontal", 1))
sketch14.addConstraint(Sketcher.Constraint("Vertical", 2))
sketch14.addConstraint(Sketcher.Constraint("Horizontal", 3))
sketch14.addConstraint(Sketcher.Constraint("Coincident", 5, 3, -1, 1))
sketch14.addConstraint(Sketcher.Constraint("Equal", 4, 6))
sketch14.addConstraint(Sketcher.Constraint("Symmetric", 4, 3, 6, 3, -1, 1))
sketch14.addConstraint(Sketcher.Constraint("Symmetric", 0, 2, 2, 2, -1, 1))
sketch14.addConstraint(Sketcher.Constraint("PointOnObject", 4, 3, -1))
sketch14.addConstraint(Sketcher.Constraint("DistanceX", 1, 1, 1, 2, Q("7 in")))
sketch14.addConstraint(Sketcher.Constraint("DistanceY", 0, 2, 0, 1, Q("2 in")))
sketch14.addConstraint(Sketcher.Constraint("Diameter", 4, Q("0.5625 in")))
sketch14.addConstraint(Sketcher.Constraint("Diameter", 5, Q("1.0625 in")))
sketch14.addConstraint(Sketcher.Constraint("DistanceX", 4, 3, 6, 3, Q("5 in")))
sketch14.setExpression("Constraints[13]", "Params.sketch14_width")
sketch14.setExpression("Constraints[14]", "Params.sketch14_height")
sketch14.setExpression("Constraints[15]", "Params.sketch14_diameter")
sketch14.setExpression("Constraints[16]", "Params.sketch14_diameter2")
pad8 = body5.newObject("PartDesign::Pad", "Pad007")
pad8.Profile = sketch14
pad8.setExpression("Length", "Params.pad8_length")
body6 = doc.addObject("PartDesign::Body", "Body005")

# Sketch on XY plane
sketch15 = body6.newObject("Sketcher::SketchObject", "Sketch014")
sketch15.AttachmentSupport = (doc.getObject("XY_Plane005"), [""])
sketch15.MapMode = "FlatFace"
sketch15.AttachmentOffset = App.Placement(V(0, 0, 12.5 * 25.4), App.Rotation())
add_polygon(sketch15, [(49, -14), (49, 14), (78, 14), (78, -14)])  # lines 0-3
sketch15.addGeometry(Part.Circle(V(64, 0, 0), V(0, 0, 1), 7), False)  # 4
sketch15.addConstraint(Sketcher.Constraint("Vertical", 0))
sketch15.addConstraint(Sketcher.Constraint("Horizontal", 1))
sketch15.addConstraint(Sketcher.Constraint("Vertical", 2))
sketch15.addConstraint(Sketcher.Constraint("Horizontal", 3))
sketch15.addConstraint(Sketcher.Constraint("PointOnObject", 4, 3, -1))
sketch15.addConstraint(Sketcher.Constraint("Equal", 3, 0))
sketch15.addConstraint(Sketcher.Constraint("Diameter", 4, Q("0.5625 in")))
sketch15.addConstraint(Sketcher.Constraint("DistanceX", -1, 1, 4, 3, Q("2.5 in")))
sketch15.addConstraint(Sketcher.Constraint("DistanceX", 1, 1, 1, 2, Q("1.125 in")))
sketch15.addConstraint(Sketcher.Constraint("DistanceX", -1, 1, 0, 2, Q("1.9375 in")))
sketch15.addConstraint(Sketcher.Constraint("DistanceY", -1, 1, 0, 2, Q("0.5625 in")))
sketch15.setExpression("Constraints[10]", "Params.sketch15_diameter")
sketch15.setExpression("Constraints[12]", "Params.sketch15_width")
pad9 = body6.newObject("PartDesign::Pad", "Pad008")
pad9.Profile = sketch15
pad9.setExpression("Length", "Params.pad9_length")
body7 = doc.addObject("PartDesign::Body", "Body006")

# Sketch on XY plane
sketch16 = body7.newObject("Sketcher::SketchObject", "Sketch015")
sketch16.AttachmentSupport = (doc.getObject("XY_Plane006"), [""])
sketch16.MapMode = "FlatFace"
sketch16.AttachmentOffset = App.Placement(V(0, 0, 12.5 * 25.4), App.Rotation())
add_polygon(sketch16, [(-78, -14), (-78, 14), (-49, 14), (-49, -14)])  # lines 0-3
sketch16.addGeometry(Part.Circle(V(-64, 0, 0), V(0, 0, 1), 7), False)  # 4
sketch16.addConstraint(Sketcher.Constraint("Vertical", 0))
sketch16.addConstraint(Sketcher.Constraint("Horizontal", 1))
sketch16.addConstraint(Sketcher.Constraint("Vertical", 2))
sketch16.addConstraint(Sketcher.Constraint("Horizontal", 3))
sketch16.addConstraint(Sketcher.Constraint("PointOnObject", 4, 3, -1))
sketch16.addConstraint(Sketcher.Constraint("Equal", 3, 0))
sketch16.addConstraint(Sketcher.Constraint("Diameter", 4, Q("0.5625 in")))
sketch16.addConstraint(Sketcher.Constraint("DistanceX", 4, 3, -1, 1, Q("2.5 in")))
sketch16.addConstraint(Sketcher.Constraint("DistanceX", 1, 1, 1, 2, Q("1.125 in")))
sketch16.addConstraint(Sketcher.Constraint("DistanceX", 0, 2, -1, 1, Q("3.0625 in")))
sketch16.addConstraint(Sketcher.Constraint("DistanceY", -1, 1, 0, 2, Q("0.5625 in")))
sketch16.setExpression("Constraints[10]", "Params.sketch16_diameter")
sketch16.setExpression("Constraints[12]", "Params.sketch16_width")
pad10 = body7.newObject("PartDesign::Pad", "Pad009")
pad10.Profile = sketch16
pad10.setExpression("Length", "Params.pad10_length")
body8 = doc.addObject("PartDesign::Body", "Body007")

# Sketch on XY plane
sketch17 = body8.newObject("Sketcher::SketchObject", "Sketch016")
sketch17.AttachmentSupport = (doc.getObject("XY_Plane007"), [""])
sketch17.MapMode = "FlatFace"
sketch17.AttachmentOffset = App.Placement(V(0, 0, 14 * 25.4), App.Rotation())
sketch17.addGeometry(Part.Circle(V(0, 0, 0), V(0, 0, 1), 13), False)
sketch17.addConstraint(Sketcher.Constraint("Coincident", 0, 3, -1, 1))
sketch17.addConstraint(Sketcher.Constraint("Diameter", 0, Q("1 in")))
sketch17.setExpression("Constraints[1]", "Params.sketch17_diameter")
pad11 = body8.newObject("PartDesign::Pad", "Pad010")
pad11.Profile = sketch17
pad11.setExpression("Length", "Params.pad11_length")

doc.recompute()
